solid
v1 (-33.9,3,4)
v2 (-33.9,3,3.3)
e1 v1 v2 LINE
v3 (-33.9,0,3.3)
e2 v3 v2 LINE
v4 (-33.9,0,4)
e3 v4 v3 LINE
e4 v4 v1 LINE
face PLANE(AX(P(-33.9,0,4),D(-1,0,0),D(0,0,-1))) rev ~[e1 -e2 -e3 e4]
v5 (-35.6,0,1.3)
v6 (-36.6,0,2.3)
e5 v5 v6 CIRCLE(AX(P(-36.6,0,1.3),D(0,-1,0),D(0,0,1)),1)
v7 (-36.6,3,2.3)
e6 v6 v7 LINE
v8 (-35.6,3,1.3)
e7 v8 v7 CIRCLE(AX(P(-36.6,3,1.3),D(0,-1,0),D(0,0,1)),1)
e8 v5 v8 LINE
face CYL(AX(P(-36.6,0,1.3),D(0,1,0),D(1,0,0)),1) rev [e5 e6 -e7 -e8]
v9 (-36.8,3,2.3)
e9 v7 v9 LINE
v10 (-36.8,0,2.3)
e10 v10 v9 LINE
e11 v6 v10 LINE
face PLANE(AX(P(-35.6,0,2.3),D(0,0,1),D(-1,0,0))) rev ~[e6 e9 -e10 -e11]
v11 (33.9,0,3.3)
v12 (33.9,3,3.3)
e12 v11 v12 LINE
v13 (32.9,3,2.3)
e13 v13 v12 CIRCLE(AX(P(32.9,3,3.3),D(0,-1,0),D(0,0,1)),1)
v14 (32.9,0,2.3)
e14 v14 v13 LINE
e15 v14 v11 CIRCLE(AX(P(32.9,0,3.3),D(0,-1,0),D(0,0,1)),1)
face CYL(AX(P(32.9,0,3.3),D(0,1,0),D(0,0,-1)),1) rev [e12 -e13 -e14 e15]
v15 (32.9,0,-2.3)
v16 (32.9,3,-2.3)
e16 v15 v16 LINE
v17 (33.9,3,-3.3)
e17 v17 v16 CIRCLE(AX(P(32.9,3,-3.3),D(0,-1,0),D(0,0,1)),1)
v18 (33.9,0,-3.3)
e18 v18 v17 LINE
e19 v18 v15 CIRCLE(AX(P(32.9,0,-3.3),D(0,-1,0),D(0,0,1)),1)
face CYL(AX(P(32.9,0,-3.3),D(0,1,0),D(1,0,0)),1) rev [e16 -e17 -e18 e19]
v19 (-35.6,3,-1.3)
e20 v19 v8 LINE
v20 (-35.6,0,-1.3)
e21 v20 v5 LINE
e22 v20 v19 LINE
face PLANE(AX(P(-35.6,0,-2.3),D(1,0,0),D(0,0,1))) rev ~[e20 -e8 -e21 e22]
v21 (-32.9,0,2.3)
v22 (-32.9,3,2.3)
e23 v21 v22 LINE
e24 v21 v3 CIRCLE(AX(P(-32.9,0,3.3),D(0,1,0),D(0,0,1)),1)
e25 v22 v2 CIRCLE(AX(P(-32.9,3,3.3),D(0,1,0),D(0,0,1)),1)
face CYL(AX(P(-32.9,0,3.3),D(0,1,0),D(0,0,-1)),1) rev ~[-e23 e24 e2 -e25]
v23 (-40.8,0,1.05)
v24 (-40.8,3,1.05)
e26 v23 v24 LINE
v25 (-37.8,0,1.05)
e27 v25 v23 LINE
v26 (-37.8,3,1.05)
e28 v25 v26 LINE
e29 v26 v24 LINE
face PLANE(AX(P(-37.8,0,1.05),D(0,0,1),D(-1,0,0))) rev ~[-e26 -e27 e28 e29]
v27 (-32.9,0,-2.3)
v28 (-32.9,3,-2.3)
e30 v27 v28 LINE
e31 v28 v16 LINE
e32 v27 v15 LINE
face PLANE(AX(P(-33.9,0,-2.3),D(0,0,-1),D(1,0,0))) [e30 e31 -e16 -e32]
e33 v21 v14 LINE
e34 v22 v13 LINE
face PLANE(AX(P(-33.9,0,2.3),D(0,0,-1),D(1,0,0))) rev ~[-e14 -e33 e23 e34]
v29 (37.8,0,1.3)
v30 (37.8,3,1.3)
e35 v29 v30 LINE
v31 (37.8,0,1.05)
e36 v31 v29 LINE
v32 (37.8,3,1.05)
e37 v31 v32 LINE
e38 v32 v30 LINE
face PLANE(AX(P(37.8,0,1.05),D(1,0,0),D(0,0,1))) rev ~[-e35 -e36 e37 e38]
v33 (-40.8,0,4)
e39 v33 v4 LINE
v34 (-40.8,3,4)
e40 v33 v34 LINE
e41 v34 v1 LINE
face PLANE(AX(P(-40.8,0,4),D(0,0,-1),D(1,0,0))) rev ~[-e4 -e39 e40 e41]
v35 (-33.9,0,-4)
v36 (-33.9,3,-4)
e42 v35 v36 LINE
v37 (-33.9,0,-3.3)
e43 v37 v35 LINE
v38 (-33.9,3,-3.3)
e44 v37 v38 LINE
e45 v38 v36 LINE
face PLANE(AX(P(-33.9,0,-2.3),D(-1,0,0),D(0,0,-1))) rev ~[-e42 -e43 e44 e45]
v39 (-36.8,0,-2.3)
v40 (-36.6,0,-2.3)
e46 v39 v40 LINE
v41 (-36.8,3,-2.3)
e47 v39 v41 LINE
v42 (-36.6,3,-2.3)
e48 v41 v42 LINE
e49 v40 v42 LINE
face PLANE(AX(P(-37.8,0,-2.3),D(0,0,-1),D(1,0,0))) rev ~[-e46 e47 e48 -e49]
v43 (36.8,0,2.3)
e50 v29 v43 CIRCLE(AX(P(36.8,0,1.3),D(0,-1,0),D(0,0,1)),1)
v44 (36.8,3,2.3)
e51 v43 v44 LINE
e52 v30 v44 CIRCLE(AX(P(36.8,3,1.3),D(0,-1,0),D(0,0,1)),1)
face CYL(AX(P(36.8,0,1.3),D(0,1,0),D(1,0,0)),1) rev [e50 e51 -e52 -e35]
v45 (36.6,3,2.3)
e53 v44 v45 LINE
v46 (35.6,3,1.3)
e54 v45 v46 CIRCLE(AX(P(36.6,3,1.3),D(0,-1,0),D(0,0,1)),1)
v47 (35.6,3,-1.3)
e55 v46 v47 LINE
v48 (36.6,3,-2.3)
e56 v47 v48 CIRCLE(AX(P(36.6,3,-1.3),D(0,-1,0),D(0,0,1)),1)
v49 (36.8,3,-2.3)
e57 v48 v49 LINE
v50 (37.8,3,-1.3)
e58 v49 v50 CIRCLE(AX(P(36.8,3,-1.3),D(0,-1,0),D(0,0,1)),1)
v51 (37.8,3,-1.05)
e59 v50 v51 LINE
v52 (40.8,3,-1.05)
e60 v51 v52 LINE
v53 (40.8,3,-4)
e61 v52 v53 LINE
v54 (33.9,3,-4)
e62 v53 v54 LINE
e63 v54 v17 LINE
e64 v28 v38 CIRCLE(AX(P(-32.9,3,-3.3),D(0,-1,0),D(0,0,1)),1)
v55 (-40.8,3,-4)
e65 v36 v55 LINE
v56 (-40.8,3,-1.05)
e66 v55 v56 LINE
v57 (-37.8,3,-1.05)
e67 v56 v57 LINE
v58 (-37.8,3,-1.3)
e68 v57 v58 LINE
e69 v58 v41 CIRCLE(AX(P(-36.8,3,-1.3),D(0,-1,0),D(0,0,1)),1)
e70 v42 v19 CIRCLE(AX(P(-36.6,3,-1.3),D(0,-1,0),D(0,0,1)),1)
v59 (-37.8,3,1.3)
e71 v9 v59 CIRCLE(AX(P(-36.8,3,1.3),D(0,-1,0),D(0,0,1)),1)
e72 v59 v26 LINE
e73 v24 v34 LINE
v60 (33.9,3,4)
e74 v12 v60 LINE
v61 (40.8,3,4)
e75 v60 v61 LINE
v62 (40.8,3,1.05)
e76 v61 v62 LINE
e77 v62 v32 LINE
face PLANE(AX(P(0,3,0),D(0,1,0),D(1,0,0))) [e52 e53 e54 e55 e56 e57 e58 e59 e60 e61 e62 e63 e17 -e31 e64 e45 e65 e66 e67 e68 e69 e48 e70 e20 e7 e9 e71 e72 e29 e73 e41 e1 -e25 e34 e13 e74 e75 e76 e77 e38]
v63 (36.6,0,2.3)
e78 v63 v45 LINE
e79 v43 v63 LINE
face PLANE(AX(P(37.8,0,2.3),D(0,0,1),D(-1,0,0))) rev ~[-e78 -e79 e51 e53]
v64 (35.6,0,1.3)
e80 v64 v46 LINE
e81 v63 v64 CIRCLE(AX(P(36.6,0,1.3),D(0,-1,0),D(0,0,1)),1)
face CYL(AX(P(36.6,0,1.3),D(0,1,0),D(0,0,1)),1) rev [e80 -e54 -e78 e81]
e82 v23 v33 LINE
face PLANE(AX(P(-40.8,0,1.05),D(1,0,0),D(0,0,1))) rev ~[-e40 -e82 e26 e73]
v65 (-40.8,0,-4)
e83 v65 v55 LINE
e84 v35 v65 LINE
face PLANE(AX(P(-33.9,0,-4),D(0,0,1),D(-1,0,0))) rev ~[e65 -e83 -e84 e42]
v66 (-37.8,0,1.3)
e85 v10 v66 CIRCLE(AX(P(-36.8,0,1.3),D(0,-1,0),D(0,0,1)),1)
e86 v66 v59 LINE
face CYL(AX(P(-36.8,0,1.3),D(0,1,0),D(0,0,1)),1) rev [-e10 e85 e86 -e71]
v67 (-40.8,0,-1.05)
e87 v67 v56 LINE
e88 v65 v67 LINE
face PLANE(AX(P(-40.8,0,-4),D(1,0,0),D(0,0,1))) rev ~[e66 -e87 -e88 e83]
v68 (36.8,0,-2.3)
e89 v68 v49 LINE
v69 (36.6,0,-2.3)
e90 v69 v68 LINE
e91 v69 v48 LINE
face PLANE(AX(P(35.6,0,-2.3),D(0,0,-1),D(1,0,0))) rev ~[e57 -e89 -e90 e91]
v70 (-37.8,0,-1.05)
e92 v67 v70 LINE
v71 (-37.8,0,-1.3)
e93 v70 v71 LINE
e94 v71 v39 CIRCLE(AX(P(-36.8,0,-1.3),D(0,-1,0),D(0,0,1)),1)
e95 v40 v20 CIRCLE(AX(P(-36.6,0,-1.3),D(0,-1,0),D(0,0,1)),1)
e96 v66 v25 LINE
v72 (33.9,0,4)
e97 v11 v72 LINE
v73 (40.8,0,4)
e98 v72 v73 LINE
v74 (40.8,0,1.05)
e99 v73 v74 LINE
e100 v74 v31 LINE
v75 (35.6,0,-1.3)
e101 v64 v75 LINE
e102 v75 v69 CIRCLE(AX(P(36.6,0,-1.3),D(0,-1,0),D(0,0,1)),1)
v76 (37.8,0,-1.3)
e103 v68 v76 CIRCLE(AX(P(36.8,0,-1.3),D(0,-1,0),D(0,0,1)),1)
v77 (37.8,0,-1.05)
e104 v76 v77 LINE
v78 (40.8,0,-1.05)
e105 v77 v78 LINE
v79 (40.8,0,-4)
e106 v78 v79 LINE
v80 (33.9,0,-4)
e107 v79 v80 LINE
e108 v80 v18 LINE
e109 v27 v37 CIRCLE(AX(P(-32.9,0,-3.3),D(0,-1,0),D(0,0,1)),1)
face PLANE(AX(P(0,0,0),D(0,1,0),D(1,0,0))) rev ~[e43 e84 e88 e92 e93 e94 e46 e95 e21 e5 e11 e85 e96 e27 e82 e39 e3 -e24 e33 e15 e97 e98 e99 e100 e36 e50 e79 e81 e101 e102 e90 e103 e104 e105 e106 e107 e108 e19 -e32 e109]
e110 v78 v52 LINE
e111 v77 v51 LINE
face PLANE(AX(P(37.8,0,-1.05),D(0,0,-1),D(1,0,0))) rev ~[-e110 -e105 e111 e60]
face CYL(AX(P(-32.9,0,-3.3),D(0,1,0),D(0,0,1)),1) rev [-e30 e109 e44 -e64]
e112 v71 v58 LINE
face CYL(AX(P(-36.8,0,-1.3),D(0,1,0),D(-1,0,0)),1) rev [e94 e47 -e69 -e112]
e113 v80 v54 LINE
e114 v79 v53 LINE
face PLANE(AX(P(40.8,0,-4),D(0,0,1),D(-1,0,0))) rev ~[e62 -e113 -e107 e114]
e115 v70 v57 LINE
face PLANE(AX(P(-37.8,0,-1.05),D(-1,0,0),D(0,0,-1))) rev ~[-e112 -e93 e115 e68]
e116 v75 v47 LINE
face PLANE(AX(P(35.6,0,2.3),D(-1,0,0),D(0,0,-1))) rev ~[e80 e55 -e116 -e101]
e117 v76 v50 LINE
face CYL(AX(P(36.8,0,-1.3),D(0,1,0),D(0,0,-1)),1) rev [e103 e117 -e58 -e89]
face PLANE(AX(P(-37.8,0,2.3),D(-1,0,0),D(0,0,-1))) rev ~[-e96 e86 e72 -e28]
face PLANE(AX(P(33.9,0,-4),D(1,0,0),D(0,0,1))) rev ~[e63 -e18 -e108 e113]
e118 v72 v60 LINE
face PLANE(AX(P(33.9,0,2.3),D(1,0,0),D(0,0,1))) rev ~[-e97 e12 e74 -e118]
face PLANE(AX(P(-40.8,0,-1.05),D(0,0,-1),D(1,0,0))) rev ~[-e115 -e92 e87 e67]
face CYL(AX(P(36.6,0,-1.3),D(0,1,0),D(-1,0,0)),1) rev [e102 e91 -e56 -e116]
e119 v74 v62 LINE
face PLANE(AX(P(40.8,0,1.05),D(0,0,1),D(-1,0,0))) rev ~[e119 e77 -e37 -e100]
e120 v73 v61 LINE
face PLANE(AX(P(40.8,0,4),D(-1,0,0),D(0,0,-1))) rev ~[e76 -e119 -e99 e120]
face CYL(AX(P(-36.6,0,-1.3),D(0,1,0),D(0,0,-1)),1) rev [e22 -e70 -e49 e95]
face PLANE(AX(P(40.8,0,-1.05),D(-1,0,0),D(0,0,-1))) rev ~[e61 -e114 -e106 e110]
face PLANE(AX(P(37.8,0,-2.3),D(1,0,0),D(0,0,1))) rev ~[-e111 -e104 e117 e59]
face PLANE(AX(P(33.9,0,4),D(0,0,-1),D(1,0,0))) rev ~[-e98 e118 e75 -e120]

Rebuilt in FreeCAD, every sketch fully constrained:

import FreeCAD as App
import Part
import Sketcher
from FreeCAD import Vector


def edges_at(feature, points):
    """Names of the edges that pass closest to the given points."""
    edges = feature.Shape.Edges
    near = lambda p: min(range(len(edges)), key=lambda i: edges[i].distToShape(Part.Vertex(*p))[0])
    return sorted({f"Edge{near(p) + 1}" for p in points})


def add_polygon(sketch, points):
    """Adds a closed chain of lines whose ends are joined by coincident constraints."""
    first, n = sketch.GeometryCount, len(points)
    for a, b in zip(points, points[1:] + points[:1]):
        sketch.addGeometry(Part.LineSegment(App.Vector(*a, 0), App.Vector(*b, 0)), False)
    for i in range(n):
        sketch.addConstraint(Sketcher.Constraint("Coincident", first + i, 2, first + (i + 1) % n, 1))

doc = App.newDocument("Part")
body = doc.addObject("PartDesign::Body", "Body")

# Sketch on XZ plane
sketch1 = body.newObject("Sketcher::SketchObject", "Sketch")
sketch1.AttachmentSupport = (doc.getObject("XZ_Plane"), [""])
sketch1.MapMode = "FlatFace"
add_polygon(sketch1, [(-33.9, 2.3), (33.9, 2.3), (33.9, 4), (40.8, 4), (40.8, 1.05), (37.8, 1.05), (37.8, 2.3), (35.6, 2.3), (35.6, -2.3), (37.8, -2.3), (37.8, -1.05), (40.8, -1.05), (40.8, -4), (33.9, -4), (33.9, -2.3), (-33.9, -2.3), (-33.9, -4), (-40.8, -4), (-40.8, -1.05), (-37.8, -1.05), (-37.8, -2.3), (-35.6, -2.3), (-35.6, 2.3), (-37.8, 2.3), (-37.8, 1.05), (-40.8, 1.05), (-40.8, 4), (-33.9, 4)])  # lines 0-27
sketch1.addConstraint([
    Sketcher.Constraint("Horizontal", 0),
    Sketcher.Constraint("Vertical", 1),
    Sketcher.Constraint("Horizontal", 2),
    Sketcher.Constraint("Vertical", 3),
    Sketcher.Constraint("Horizontal", 4),
    Sketcher.Constraint("Vertical", 5),
    Sketcher.Constraint("Horizontal", 6),
    Sketcher.Constraint("Vertical", 7),
    Sketcher.Constraint("Horizontal", 8),
    Sketcher.Constraint("Vertical", 9),
    Sketcher.Constraint("Horizontal", 10),
    Sketcher.Constraint("Vertical", 11),
    Sketcher.Constraint("Horizontal", 12),
    Sketcher.Constraint("Vertical", 13),
    Sketcher.Constraint("Horizontal", 14),
    Sketcher.Constraint("Vertical", 15),
    Sketcher.Constraint("Horizontal", 16),
    Sketcher.Constraint("Vertical", 17),
    Sketcher.Constraint("Horizontal", 18),
    Sketcher.Constraint("Vertical", 19),
    Sketcher.Constraint("Horizontal", 20),
    Sketcher.Constraint("Vertical", 21),
    Sketcher.Constraint("Horizontal", 22),
    Sketcher.Constraint("Vertical", 23),
    Sketcher.Constraint("Horizontal", 24),
    Sketcher.Constraint("Vertical", 25),
    Sketcher.Constraint("Horizontal", 26),
    Sketcher.Constraint("Vertical", 27),
    Sketcher.Constraint("Symmetric", 0, 2, 14, 2, -1, 1),
    Sketcher.Constraint("Symmetric", 2, 2, 16, 2, -1, 1),
    Sketcher.Constraint("Symmetric", 4, 2, 18, 2, -1, 1),
    Sketcher.Constraint("Symmetric", 6, 2, 20, 2, -1, 1),
    Sketcher.Constraint("Symmetric", 8, 2, 22, 2, -1, 1),
    Sketcher.Constraint("Symmetric", 10, 2, 24, 2, -1, 1),
    Sketcher.Constraint("Symmetric", 12, 2, 26, 2, -1, 1),
    Sketcher.Constraint("Symmetric", 12, 2, 15, 2, -2),
    Sketcher.Constraint("Symmetric", 10, 2, 17, 2, -2),
    Sketcher.Constraint("Symmetric", 8, 2, 19, 2, -2),
    Sketcher.Constraint("Horizontal", 0, 2, 5, 2),
    Sketcher.Constraint("DistanceX", 4, 2, 4, 1, 3.0),
    Sketcher.Constraint("DistanceX", 0, 1, 0, 2, 67.8),
    Sketcher.Constraint("DistanceX", 2, 1, 2, 2, 6.9),
    Sketcher.Constraint("DistanceX", 6, 2, 6, 1, 2.2),
    Sketcher.Constraint("DistanceY", 1, 1, 1, 2, 1.7),
    Sketcher.Constraint("DistanceY", 7, 2, 7, 1, 4.6),
    Sketcher.Constraint("DistanceY", 3, 2, 3, 1, 2.95),
])
pad1 = body.newObject("PartDesign::Pad", "Pad")
pad1.Profile = sketch1
pad1.Length = 3
pad1.Reversed = True
doc.recompute()

fillet = body.newObject("PartDesign::Fillet", "Fillet")
fillet.Base = (pad1, edges_at(pad1, [
    (-33.9, 1.5, 2.3),
    (-37.8, 1.5, 2.3),
    (-35.6, 1.5, 2.3),
    (-35.6, 1.5, -2.3),
    (-37.8, 1.5, -2.3),
    (-33.9, 1.5, -2.3),
    (33.9, 1.5, -2.3),
    (37.8, 1.5, -2.3),
    (35.6, 1.5, -2.3),
    (35.6, 1.5, 2.3),
    (37.8, 1.5, 2.3),
    (33.9, 1.5, 2.3),
]))
fillet.Radius = 1

doc.recompute()
